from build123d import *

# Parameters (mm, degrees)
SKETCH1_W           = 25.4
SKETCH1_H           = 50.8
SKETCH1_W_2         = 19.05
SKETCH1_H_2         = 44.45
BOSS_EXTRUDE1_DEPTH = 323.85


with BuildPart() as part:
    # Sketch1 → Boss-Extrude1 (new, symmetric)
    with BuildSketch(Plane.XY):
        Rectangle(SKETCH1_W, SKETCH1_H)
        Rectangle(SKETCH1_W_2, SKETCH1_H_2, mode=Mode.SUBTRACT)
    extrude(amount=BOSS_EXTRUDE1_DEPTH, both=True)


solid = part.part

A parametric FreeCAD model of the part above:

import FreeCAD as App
import Part
import Sketcher
Q = App.Units.Quantity

doc = App.newDocument("Part")
body = doc.addObject("PartDesign::Body", "Body")

# Sketch on XY plane
sketch1 = body.newObject("Sketcher::SketchObject", "Sketch")
sketch1.AttachmentSupport = (doc.getObject("XY_Plane"), [""])
sketch1.MapMode = "FlatFace"
sketch1.addGeometry(Part.LineSegment(App.Vector(-13, 25, 0), App.Vector(-13, -25, 0)), False)
sketch1.addGeometry(Part.LineSegment(App.Vector(-13, -25, 0), App.Vector(13, -25, 0)), False)
sketch1.addGeometry(Part.LineSegment(App.Vector(13, -25, 0), App.Vector(13, 25, 0)), False)
sketch1.addGeometry(Part.LineSegment(App.Vector(13, 25, 0), App.Vector(-13, 25, 0)), False)
sketch1.addGeometry(Part.LineSegment(App.Vector(10, -22, 0), App.Vector(-10, -22, 0)), False)
sketch1.addGeometry(Part.LineSegment(App.Vector(-10, -22, 0), App.Vector(-10, 22, 0)), False)
sketch1.addGeometry(Part.LineSegment(App.Vector(-10, 22, 0), App.Vector(10, 22, 0)), False)
sketch1.addGeometry(Part.LineSegment(App.Vector(10, 22, 0), App.Vector(10, -22, 0)), False)
sketch1.addConstraint(Sketcher.Constraint("Coincident", 0, 2, 1, 1))
sketch1.addConstraint(Sketcher.Constraint("Coincident", 1, 2, 2, 1))
sketch1.addConstraint(Sketcher.Constraint("Coincident", 2, 2, 3, 1))
sketch1.addConstraint(Sketcher.Constraint("Coincident", 3, 2, 0, 1))
sketch1.addConstraint(Sketcher.Constraint("Coincident", 4, 2, 5, 1))
sketch1.addConstraint(Sketcher.Constraint("Coincident", 5, 2, 6, 1))
sketch1.addConstraint(Sketcher.Constraint("Coincident", 6, 2, 7, 1))
sketch1.addConstraint(Sketcher.Constraint("Coincident", 7, 2, 4, 1))
sketch1.addConstraint(Sketcher.Constraint("Vertical", 0))
sketch1.addConstraint(Sketcher.Constraint("Horizontal", 1))
sketch1.addConstraint(Sketcher.Constraint("Vertical", 2))
sketch1.addConstraint(Sketcher.Constraint("Horizontal", 3))
sketch1.addConstraint(Sketcher.Constraint("Horizontal", 4))
sketch1.addConstraint(Sketcher.Constraint("Vertical", 5))
sketch1.addConstraint(Sketcher.Constraint("Horizontal", 6))
sketch1.addConstraint(Sketcher.Constraint("Vertical", 7))
sketch1.addConstraint(Sketcher.Constraint("Symmetric", 0, 2, 2, 2, -1, 1))
sketch1.addConstraint(Sketcher.Constraint("Symmetric", 4, 2, 6, 2, -1, 1))
sketch1.addConstraint(Sketcher.Constraint("DistanceX", 1, 1, 1, 2, Q("1 in")))
sketch1.addConstraint(Sketcher.Constraint("DistanceY", 0, 2, 0, 1, Q("2 in")))
sketch1.addConstraint(Sketcher.Constraint("DistanceX", 4, 2, 4, 1, Q("0.75 in")))
sketch1.addConstraint(Sketcher.Constraint("DistanceY", 5, 1, 5, 2, Q("1.75 in")))
pad1 = body.newObject("PartDesign::Pad", "Pad")
pad1.Profile = sketch1
pad1.Length = Q("25.5 in")
pad1.Midplane = True

doc.recompute()
